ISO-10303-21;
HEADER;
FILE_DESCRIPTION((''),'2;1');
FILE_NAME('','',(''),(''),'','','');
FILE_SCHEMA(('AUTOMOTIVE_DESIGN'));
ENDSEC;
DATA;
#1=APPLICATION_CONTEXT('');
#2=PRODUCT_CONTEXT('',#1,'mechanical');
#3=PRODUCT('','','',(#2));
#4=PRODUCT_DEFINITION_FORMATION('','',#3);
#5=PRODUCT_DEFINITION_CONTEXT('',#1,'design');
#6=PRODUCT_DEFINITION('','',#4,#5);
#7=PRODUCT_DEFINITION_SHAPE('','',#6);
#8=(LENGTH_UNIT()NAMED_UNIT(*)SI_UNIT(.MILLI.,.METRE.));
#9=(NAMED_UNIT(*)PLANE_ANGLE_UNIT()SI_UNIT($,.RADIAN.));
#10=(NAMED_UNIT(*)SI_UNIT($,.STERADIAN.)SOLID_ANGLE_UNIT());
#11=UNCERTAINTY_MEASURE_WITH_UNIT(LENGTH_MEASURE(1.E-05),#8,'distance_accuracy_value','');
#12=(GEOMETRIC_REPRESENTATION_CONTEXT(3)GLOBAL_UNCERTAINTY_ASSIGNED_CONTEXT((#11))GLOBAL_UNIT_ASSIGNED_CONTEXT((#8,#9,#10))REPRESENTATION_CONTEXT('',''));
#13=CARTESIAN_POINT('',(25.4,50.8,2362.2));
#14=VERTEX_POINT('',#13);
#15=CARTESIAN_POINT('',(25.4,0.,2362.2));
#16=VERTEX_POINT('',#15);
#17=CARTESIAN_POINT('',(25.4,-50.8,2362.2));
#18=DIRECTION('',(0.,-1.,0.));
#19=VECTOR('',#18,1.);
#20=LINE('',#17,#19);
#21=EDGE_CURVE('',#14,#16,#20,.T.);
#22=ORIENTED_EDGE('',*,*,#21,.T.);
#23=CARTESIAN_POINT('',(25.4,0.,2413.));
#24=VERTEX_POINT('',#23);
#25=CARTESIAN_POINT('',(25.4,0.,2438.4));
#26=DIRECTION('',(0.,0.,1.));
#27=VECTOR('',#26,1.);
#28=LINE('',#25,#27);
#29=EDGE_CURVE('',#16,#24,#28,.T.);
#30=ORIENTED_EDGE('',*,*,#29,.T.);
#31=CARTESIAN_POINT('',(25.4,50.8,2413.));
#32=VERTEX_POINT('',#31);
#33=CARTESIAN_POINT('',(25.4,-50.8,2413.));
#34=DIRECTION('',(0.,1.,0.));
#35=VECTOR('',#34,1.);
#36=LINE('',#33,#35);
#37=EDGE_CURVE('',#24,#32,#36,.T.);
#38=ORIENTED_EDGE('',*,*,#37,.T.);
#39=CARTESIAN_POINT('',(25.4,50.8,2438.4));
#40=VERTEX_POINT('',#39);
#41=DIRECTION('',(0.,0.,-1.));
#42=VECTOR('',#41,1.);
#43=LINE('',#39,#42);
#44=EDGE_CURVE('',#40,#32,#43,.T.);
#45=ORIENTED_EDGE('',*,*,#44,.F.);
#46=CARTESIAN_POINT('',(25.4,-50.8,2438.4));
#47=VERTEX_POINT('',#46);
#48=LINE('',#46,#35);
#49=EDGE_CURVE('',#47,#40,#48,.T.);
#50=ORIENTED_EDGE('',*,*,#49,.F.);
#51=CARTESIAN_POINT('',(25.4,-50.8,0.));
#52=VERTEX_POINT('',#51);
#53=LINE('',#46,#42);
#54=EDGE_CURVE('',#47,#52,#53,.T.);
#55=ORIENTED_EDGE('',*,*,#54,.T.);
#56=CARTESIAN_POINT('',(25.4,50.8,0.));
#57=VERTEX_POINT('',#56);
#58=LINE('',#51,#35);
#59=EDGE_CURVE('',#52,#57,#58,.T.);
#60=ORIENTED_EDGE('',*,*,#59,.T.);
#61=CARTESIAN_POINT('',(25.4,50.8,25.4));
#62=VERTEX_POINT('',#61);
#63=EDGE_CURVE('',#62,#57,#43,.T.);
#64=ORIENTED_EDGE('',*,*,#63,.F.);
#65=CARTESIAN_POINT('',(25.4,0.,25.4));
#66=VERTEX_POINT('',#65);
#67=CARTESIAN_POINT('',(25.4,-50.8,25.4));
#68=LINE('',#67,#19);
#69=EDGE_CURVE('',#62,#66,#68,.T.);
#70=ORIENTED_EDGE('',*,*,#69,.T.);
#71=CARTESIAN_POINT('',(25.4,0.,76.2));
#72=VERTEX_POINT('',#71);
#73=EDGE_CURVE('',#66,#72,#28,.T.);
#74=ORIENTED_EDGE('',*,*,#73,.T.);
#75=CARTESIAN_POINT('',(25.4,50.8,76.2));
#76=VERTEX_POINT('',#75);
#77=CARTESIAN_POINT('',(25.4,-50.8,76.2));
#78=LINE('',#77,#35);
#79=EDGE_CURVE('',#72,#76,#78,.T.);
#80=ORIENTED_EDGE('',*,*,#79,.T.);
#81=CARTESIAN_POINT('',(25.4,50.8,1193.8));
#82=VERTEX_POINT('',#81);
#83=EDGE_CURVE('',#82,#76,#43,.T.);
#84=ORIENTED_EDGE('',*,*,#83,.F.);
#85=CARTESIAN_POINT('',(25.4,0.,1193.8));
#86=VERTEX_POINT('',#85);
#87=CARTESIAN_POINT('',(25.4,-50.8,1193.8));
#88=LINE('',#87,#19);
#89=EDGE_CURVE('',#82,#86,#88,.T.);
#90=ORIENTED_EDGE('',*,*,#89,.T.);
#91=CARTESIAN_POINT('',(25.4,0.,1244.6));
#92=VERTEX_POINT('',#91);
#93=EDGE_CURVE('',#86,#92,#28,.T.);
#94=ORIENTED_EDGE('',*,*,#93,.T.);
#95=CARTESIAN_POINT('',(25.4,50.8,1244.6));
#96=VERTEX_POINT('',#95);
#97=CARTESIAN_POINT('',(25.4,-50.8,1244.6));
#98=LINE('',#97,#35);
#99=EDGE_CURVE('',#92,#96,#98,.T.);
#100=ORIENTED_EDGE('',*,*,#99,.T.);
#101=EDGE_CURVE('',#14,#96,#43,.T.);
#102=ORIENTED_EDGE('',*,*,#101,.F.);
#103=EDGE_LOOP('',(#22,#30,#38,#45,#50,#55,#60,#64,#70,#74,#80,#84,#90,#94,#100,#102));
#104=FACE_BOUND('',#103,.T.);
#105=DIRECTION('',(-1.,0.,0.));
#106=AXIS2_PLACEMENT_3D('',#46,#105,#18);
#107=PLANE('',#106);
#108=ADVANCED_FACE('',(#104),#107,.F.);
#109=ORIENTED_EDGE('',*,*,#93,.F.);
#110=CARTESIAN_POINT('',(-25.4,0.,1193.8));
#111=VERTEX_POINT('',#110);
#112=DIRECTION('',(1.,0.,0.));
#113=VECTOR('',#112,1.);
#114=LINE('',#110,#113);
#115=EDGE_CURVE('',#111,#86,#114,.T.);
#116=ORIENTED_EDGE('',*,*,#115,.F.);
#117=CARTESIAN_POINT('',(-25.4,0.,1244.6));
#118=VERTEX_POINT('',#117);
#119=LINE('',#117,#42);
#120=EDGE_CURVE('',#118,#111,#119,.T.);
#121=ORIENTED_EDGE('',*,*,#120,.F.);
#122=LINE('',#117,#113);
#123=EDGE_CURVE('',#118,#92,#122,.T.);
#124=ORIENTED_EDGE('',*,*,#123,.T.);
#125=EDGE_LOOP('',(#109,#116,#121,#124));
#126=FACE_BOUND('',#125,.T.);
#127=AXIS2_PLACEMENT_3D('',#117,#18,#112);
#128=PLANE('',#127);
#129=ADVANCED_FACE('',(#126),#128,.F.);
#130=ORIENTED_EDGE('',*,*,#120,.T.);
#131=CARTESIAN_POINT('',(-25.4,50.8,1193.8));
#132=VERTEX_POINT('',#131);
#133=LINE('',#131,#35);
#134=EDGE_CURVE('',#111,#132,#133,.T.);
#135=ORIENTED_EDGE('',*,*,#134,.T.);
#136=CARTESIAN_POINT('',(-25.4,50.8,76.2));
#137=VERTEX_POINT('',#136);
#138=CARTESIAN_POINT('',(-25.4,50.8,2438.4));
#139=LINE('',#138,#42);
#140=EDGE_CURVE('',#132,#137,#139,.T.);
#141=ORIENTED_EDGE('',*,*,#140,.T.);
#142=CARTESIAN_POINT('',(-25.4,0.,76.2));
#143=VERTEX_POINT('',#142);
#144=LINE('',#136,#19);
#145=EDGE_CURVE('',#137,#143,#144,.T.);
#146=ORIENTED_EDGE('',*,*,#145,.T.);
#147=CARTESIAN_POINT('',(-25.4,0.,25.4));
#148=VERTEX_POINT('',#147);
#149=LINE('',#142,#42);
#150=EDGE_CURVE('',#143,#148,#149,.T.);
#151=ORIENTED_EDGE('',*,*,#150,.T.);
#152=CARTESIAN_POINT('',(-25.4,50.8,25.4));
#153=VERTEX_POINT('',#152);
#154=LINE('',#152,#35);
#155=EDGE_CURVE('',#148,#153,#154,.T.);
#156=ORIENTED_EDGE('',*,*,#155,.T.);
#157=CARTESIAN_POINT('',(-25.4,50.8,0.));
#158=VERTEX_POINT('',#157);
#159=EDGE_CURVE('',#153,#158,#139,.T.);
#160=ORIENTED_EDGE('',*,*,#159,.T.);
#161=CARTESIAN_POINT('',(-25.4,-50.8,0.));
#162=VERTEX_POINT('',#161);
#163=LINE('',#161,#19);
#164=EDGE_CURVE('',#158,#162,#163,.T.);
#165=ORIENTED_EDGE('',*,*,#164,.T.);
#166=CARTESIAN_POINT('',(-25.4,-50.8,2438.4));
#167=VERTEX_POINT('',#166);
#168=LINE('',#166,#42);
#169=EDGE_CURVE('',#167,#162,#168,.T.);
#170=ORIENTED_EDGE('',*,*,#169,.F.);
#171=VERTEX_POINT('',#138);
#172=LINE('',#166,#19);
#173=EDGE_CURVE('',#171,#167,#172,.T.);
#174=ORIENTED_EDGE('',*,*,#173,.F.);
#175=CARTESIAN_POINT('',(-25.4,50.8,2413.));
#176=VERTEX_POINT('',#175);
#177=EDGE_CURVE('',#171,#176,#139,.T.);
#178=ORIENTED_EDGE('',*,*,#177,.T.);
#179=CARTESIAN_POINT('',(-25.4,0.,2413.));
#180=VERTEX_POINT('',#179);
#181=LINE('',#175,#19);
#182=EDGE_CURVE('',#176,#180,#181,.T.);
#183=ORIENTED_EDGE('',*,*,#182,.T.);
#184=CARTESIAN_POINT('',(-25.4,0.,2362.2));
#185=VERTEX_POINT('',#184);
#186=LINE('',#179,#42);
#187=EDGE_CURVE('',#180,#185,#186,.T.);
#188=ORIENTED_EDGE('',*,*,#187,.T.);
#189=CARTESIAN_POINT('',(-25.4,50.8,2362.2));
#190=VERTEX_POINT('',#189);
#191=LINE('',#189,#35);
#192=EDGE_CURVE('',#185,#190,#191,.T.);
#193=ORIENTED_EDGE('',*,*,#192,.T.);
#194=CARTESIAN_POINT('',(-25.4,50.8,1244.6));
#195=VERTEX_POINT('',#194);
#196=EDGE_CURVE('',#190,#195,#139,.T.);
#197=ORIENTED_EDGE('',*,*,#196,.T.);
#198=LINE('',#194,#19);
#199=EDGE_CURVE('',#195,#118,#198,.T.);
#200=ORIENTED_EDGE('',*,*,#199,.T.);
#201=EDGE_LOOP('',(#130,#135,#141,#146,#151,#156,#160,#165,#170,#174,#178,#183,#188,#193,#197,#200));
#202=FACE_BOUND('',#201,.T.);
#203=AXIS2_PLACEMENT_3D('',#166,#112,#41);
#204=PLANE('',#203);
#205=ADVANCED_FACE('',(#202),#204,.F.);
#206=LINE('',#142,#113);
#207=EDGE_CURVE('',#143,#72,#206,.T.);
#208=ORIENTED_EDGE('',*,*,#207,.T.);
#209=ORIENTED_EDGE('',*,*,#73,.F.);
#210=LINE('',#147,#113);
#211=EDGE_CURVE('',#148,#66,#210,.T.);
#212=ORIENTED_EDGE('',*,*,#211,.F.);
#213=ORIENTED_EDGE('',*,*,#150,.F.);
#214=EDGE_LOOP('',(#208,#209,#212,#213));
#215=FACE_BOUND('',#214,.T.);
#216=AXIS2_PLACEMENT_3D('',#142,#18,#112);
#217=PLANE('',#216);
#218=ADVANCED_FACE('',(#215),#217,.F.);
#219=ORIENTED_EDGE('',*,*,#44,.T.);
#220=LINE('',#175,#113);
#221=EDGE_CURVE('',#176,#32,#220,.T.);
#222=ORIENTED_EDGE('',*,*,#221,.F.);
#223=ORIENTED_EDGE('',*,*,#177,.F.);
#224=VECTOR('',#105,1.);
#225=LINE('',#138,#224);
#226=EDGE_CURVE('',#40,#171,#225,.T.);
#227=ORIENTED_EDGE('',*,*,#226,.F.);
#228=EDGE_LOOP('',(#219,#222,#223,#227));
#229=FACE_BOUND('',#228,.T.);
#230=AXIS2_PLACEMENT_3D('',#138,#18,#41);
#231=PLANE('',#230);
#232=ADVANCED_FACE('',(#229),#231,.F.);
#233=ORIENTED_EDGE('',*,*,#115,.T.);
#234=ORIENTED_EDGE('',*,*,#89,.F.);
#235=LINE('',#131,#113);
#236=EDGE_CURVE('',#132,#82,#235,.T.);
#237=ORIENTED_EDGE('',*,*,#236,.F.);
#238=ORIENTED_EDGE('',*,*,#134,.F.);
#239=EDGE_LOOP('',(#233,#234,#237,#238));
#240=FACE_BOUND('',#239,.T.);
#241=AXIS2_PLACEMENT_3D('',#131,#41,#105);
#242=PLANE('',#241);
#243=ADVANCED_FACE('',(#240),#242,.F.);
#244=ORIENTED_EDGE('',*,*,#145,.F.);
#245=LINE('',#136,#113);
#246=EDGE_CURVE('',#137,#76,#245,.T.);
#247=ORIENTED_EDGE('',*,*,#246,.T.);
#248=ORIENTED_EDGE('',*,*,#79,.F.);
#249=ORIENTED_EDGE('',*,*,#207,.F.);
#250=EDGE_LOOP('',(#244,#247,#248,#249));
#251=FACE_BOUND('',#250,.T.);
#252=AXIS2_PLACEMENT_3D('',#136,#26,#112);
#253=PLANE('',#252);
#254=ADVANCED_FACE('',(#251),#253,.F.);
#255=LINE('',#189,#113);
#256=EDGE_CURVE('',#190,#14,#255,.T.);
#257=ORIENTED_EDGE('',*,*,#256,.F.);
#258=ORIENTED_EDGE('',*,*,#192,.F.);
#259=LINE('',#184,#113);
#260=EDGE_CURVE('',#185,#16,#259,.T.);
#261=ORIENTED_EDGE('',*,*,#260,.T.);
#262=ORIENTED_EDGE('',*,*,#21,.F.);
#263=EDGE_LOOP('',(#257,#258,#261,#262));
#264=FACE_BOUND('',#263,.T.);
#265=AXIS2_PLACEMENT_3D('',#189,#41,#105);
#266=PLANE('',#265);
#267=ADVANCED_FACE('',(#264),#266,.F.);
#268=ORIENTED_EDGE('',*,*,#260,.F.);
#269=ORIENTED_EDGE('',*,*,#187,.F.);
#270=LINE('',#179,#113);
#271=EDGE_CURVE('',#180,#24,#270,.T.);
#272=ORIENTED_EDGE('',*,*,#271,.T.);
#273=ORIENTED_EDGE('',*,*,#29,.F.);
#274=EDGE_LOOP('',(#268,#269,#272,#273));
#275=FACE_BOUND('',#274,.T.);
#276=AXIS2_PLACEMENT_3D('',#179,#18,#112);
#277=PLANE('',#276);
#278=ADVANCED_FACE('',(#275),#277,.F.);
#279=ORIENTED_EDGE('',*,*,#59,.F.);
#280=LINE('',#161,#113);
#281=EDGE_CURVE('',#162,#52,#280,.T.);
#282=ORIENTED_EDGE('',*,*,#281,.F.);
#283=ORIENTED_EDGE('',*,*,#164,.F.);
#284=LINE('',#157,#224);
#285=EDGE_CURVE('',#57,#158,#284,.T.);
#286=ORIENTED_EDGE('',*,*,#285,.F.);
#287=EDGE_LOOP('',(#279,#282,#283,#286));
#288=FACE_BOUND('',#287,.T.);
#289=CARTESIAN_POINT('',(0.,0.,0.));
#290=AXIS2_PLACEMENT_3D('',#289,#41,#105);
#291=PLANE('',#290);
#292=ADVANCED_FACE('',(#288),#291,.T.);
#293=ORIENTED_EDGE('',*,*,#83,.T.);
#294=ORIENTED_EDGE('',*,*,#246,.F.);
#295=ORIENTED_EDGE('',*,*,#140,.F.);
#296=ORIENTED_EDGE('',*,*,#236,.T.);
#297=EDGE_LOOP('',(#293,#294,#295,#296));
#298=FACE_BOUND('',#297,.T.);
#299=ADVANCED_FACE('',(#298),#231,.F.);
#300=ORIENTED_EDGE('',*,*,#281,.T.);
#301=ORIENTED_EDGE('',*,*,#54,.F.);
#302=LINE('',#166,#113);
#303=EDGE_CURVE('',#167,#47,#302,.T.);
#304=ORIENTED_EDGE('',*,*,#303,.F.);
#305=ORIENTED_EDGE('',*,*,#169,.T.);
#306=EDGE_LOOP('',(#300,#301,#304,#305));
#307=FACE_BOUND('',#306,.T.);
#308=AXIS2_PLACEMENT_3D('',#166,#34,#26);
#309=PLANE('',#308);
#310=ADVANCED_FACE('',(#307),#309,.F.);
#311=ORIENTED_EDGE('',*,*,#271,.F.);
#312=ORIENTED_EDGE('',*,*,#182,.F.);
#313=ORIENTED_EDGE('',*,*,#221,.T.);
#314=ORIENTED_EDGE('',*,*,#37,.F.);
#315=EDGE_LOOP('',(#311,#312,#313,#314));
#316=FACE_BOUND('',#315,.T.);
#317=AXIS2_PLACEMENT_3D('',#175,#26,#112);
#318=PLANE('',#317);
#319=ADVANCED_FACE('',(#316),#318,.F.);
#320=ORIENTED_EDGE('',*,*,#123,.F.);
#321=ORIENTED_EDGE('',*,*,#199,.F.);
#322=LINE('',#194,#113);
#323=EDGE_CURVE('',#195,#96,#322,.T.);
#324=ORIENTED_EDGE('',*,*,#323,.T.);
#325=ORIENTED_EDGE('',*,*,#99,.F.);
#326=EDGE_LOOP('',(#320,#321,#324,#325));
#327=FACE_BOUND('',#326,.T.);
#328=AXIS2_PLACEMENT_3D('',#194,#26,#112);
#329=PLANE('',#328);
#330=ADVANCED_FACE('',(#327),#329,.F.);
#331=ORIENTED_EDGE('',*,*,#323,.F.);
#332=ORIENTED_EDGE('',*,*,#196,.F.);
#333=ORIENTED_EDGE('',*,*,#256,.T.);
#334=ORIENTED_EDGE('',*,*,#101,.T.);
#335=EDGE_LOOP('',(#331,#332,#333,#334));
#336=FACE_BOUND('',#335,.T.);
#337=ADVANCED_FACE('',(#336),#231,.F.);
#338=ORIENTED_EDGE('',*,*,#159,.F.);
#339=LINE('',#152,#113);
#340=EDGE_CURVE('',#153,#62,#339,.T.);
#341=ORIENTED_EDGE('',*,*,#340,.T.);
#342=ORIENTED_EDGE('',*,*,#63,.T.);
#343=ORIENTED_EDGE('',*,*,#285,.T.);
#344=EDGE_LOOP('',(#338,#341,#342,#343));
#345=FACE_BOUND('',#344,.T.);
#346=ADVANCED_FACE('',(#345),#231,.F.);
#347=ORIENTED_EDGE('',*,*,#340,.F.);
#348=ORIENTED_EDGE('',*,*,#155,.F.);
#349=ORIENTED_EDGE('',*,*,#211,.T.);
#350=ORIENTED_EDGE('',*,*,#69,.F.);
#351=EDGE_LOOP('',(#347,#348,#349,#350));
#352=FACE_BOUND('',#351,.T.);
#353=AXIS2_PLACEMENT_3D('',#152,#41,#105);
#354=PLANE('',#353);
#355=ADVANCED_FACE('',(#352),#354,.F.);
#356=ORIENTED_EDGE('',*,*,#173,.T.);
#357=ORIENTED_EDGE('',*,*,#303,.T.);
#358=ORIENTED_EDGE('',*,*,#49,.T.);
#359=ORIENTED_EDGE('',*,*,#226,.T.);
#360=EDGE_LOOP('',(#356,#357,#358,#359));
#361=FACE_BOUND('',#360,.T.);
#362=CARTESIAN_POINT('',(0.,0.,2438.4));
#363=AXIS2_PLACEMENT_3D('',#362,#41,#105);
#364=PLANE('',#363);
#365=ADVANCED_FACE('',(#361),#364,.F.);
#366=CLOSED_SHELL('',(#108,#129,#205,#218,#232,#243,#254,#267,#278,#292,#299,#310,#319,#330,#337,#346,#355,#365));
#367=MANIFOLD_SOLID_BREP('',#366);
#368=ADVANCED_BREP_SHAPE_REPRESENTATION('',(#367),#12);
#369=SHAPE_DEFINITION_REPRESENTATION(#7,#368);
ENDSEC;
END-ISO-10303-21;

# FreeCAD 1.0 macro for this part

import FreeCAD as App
import Part
import Sketcher
Q = App.Units.Quantity


def add_polygon(sketch, points):
    """Adds a closed chain of lines whose ends are joined by coincident constraints."""
    first, n = sketch.GeometryCount, len(points)
    for a, b in zip(points, points[1:] + points[:1]):
        sketch.addGeometry(Part.LineSegment(App.Vector(*a, 0), App.Vector(*b, 0)), False)
    for i in range(n):
        sketch.addConstraint(Sketcher.Constraint("Coincident", first + i, 2, first + (i + 1) % n, 1))

doc = App.newDocument("Part")
params = doc.addObject("Spreadsheet::Sheet", "Params")
for row, (alias, value) in enumerate([
    ("sketch1_width", "2 in"),
    ("sketch1_height", "4 in"),
    ("pad1_length", "96 in"),
    ("sketch2_width", "2 in"),
], start=1):
    params.set(f"A{row}", alias)
    params.set(f"B{row}", "=" + value)
    params.setAlias(f"B{row}", alias)

body = doc.addObject("PartDesign::Body", "Body")

# Sketch on XY plane
sketch1 = body.newObject("Sketcher::SketchObject", "Sketch")
sketch1.AttachmentSupport = (doc.getObject("XY_Plane"), [""])
sketch1.MapMode = "FlatFace"
add_polygon(sketch1, [(-25, 51), (-25, -51), (25, -51), (25, 51)])  # lines 0-3
sketch1.addConstraint(Sketcher.Constraint("Vertical", 0))
sketch1.addConstraint(Sketcher.Constraint("Horizontal", 1))
sketch1.addConstraint(Sketcher.Constraint("Vertical", 2))
sketch1.addConstraint(Sketcher.Constraint("Horizontal", 3))
sketch1.addConstraint(Sketcher.Constraint("Symmetric", 0, 2, 2, 2, -1, 1))
sketch1.addConstraint(Sketcher.Constraint("DistanceX", 1, 1, 1, 2, Q("2 in")))
sketch1.addConstraint(Sketcher.Constraint("DistanceY", 0, 2, 0, 1, Q("4 in")))
sketch1.setExpression("Constraints[9]", "Params.sketch1_width")
sketch1.setExpression("Constraints[10]", "Params.sketch1_height")
pad1 = body.newObject("PartDesign::Pad", "Pad")
pad1.Profile = sketch1
pad1.setExpression("Length", "Params.pad1_length")

# Sketch on YZ plane
sketch2 = body.newObject("Sketcher::SketchObject", "Sketch001")
sketch2.AttachmentSupport = (doc.getObject("YZ_Plane"), [""])
sketch2.MapMode = "FlatFace"
sketch2.AttachmentOffset = App.Placement(App.Vector(0, 0, 1 * 25.4), App.Rotation())
add_polygon(sketch2, [(51, 1245), (0, 1245), (0, 1194), (51, 1194)])  # lines 0-3
add_polygon(sketch2, [(51, 2413), (0, 2413), (0, 2362), (51, 2362)])  # lines 4-7
add_polygon(sketch2, [(51, 76), (0, 76), (0, 25), (51, 25)])  # lines 8-11
sketch2.addConstraint(Sketcher.Constraint("Horizontal", 0))
sketch2.addConstraint(Sketcher.Constraint("Vertical", 1))
sketch2.addConstraint(Sketcher.Constraint("Horizontal", 2))
sketch2.addConstraint(Sketcher.Constraint("Vertical", 3))
sketch2.addConstraint(Sketcher.Constraint("Horizontal", 4))
sketch2.addConstraint(Sketcher.Constraint("Vertical", 5))
sketch2.addConstraint(Sketcher.Constraint("Horizontal", 6))
sketch2.addConstraint(Sketcher.Constraint("Vertical", 7))
sketch2.addConstraint(Sketcher.Constraint("Horizontal", 8))
sketch2.addConstraint(Sketcher.Constraint("Vertical", 9))
sketch2.addConstraint(Sketcher.Constraint("Horizontal", 10))
sketch2.addConstraint(Sketcher.Constraint("Vertical", 11))
sketch2.addConstraint(Sketcher.Constraint("PointOnObject", 0, 2, -2))
sketch2.addConstraint(Sketcher.Constraint("PointOnObject", 4, 2, -2))
sketch2.addConstraint(Sketcher.Constraint("PointOnObject", 8, 2, -2))
sketch2.addConstraint(Sketcher.Constraint("Vertical", 3, 2, 6, 2))
sketch2.addConstraint(Sketcher.Constraint("Vertical", 7, 2, 10, 2))
sketch2.addConstraint(Sketcher.Constraint("Equal", 10, 1))
sketch2.addConstraint(Sketcher.Constraint("Equal", 3, 5))
sketch2.addConstraint(Sketcher.Constraint("Equal", 7, 9))
sketch2.addConstraint(Sketcher.Constraint("DistanceX", 0, 2, 0, 1, Q("2 in")))
sketch2.addConstraint(Sketcher.Constraint("DistanceY", -1, 1, 0, 2, Q("49 in")))
sketch2.addConstraint(Sketcher.Constraint("DistanceY", -1, 1, 4, 2, Q("95 in")))
sketch2.addConstraint(Sketcher.Constraint("DistanceY", -1, 1, 8, 2, Q("3 in")))
sketch2.setExpression("Constraints[32]", "Params.sketch2_width")
pocket1 = body.newObject("PartDesign::Pocket", "Pocket")
pocket1.Profile = sketch2
pocket1.Type = "ThroughAll"
pocket1.Midplane = True

doc.recompute()
